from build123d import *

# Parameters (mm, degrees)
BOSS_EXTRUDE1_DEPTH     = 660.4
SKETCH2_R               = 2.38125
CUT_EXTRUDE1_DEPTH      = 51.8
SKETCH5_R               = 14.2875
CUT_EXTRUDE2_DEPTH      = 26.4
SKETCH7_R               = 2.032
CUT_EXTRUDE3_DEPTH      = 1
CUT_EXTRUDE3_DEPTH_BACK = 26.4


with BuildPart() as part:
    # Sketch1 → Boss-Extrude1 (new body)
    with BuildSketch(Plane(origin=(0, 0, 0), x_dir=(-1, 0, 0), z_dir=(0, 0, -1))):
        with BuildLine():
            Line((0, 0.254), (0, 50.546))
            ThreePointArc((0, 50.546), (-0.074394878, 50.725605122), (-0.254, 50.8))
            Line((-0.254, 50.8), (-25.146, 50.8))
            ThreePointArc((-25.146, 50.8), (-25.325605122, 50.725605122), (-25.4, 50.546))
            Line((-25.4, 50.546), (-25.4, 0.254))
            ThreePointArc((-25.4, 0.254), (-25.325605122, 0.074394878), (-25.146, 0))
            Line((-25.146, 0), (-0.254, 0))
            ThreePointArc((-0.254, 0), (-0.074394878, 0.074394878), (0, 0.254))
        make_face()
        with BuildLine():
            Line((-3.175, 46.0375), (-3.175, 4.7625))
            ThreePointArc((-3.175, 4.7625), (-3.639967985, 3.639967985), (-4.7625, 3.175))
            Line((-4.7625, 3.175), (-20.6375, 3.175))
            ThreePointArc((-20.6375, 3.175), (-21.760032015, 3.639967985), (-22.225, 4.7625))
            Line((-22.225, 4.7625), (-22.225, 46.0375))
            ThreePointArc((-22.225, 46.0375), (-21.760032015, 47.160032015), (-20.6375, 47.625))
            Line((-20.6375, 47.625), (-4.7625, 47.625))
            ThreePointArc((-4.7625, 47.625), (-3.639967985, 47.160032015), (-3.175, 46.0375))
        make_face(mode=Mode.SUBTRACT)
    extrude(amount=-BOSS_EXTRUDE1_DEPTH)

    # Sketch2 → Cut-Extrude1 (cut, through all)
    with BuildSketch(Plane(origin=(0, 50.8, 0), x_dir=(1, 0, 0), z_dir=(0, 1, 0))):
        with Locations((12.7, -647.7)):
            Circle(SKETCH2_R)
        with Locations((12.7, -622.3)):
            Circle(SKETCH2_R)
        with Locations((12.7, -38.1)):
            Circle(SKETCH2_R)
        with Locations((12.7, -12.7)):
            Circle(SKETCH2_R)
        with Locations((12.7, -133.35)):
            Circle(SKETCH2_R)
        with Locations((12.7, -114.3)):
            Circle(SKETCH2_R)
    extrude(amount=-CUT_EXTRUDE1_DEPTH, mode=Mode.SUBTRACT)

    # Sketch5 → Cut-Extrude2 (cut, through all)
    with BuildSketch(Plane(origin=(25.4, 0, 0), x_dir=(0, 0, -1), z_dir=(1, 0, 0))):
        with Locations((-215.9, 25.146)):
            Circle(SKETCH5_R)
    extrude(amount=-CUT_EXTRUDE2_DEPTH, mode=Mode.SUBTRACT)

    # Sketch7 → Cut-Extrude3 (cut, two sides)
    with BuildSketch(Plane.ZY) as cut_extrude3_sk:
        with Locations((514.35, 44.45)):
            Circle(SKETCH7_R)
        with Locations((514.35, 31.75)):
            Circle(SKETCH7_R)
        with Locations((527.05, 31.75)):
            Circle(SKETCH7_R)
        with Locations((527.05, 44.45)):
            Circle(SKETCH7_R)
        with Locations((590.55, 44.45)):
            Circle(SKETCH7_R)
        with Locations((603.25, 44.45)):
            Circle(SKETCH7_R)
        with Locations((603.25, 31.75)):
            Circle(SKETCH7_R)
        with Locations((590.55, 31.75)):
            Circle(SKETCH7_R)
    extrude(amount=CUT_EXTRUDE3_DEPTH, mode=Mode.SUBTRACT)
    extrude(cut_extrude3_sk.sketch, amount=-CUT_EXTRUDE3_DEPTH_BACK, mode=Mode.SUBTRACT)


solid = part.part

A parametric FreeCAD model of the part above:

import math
import FreeCAD as App
import Part
import Sketcher
Q = App.Units.Quantity

doc = App.newDocument("Part")
body = doc.addObject("PartDesign::Body", "Body")

sketch1 = doc.addObject("Sketcher::SketchObject", "Sketch")
body.addObject(sketch1)
sketch1.AttachmentSupport = (doc.XY_Plane, [""])
sketch1.MapMode = "FlatFace"
sketch1.addGeometry([
    Part.LineSegment(App.Vector(0, 0.25, 0), App.Vector(0, 50.55, 0)),
    Part.ArcOfCircle(Part.Circle(App.Vector(0.25, 50.55, 0), App.Vector(0, 0, 1), 0.25), math.radians(90), math.radians(180)),
    Part.LineSegment(App.Vector(0.25, 50.8, 0), App.Vector(25.15, 50.8, 0)),
    Part.ArcOfCircle(Part.Circle(App.Vector(25.15, 50.55, 0), App.Vector(0, 0, 1), 0.25), math.radians(0), math.radians(90)),
    Part.LineSegment(App.Vector(25.4, 50.55, 0), App.Vector(25.4, 0.25, 0)),
    Part.ArcOfCircle(Part.Circle(App.Vector(25.15, 0.25, 0), App.Vector(0, 0, 1), 0.25), math.radians(-90), math.radians(0)),
    Part.LineSegment(App.Vector(25.15, 0, 0), App.Vector(0.25, 0, 0)),
    Part.ArcOfCircle(Part.Circle(App.Vector(0.25, 0.25, 0), App.Vector(0, 0, 1), 0.25), math.radians(-180), math.radians(-90)),
    Part.ArcOfCircle(Part.Circle(App.Vector(4.76, 46.04, 0), App.Vector(0, 0, 1), 1.59), math.radians(90), math.radians(180)),
    Part.LineSegment(App.Vector(3.17, 46.04, 0), App.Vector(3.17, 4.76, 0)),
    Part.ArcOfCircle(Part.Circle(App.Vector(4.76, 4.76, 0), App.Vector(0, 0, 1), 1.59), math.radians(180), math.radians(270)),
    Part.LineSegment(App.Vector(4.76, 3.17, 0), App.Vector(20.64, 3.17, 0)),
    Part.ArcOfCircle(Part.Circle(App.Vector(20.64, 4.76, 0), App.Vector(0, 0, 1), 1.59), math.radians(-90), math.radians(0)),
    Part.LineSegment(App.Vector(22.23, 4.76, 0), App.Vector(22.23, 46.04, 0)),
    Part.ArcOfCircle(Part.Circle(App.Vector(20.64, 46.04, 0), App.Vector(0, 0, 1), 1.59), math.radians(0), math.radians(90)),
    Part.LineSegment(App.Vector(20.64, 47.62, 0), App.Vector(4.76, 47.62, 0)),
], False)
sketch1.addConstraint([
    Sketcher.Constraint("Tangent", 0, 2, 1, 2),
    Sketcher.Constraint("Tangent", 1, 1, 2, 1),
    Sketcher.Constraint("Tangent", 2, 2, 3, 2),
    Sketcher.Constraint("Tangent", 3, 1, 4, 1),
    Sketcher.Constraint("Tangent", 4, 2, 5, 2),
    Sketcher.Constraint("Tangent", 5, 1, 6, 1),
    Sketcher.Constraint("Tangent", 6, 2, 7, 2),
    Sketcher.Constraint("Tangent", 7, 1, 0, 1),
    Sketcher.Constraint("Tangent", 8, 2, 9, 1),
    Sketcher.Constraint("Tangent", 9, 2, 10, 1),
    Sketcher.Constraint("Tangent", 10, 2, 11, 1),
    Sketcher.Constraint("Tangent", 11, 2, 12, 1),
    Sketcher.Constraint("Tangent", 12, 2, 13, 1),
    Sketcher.Constraint("Tangent", 13, 2, 14, 1),
    Sketcher.Constraint("Tangent", 14, 2, 15, 1),
    Sketcher.Constraint("Tangent", 15, 2, 8, 1),
    Sketcher.Constraint("Vertical", 0),
    Sketcher.Constraint("Horizontal", 2),
    Sketcher.Constraint("Vertical", 4),
    Sketcher.Constraint("Horizontal", 6),
    Sketcher.Constraint("Vertical", 9),
    Sketcher.Constraint("Horizontal", 11),
    Sketcher.Constraint("Vertical", 13),
    Sketcher.Constraint("Horizontal", 15),
    Sketcher.Constraint("Equal", 1, 3),
    Sketcher.Constraint("Equal", 3, 5),
    Sketcher.Constraint("Equal", 5, 7),
    Sketcher.Constraint("Equal", 8, 10),
    Sketcher.Constraint("Equal", 10, 12),
    Sketcher.Constraint("Equal", 12, 14),
    Sketcher.Constraint("PointOnObject", 0, 2, -2),
    Sketcher.Constraint("PointOnObject", 5, 1, -1),
    Sketcher.Constraint("Radius", 1, Q("0.01 in")),
    Sketcher.Constraint("DistanceY", -1, 1, 1, 1, Q("2 in")),
    Sketcher.Constraint("DistanceX", -1, 1, 3, 1, Q("1 in")),
    Sketcher.Constraint("Radius", 8, Q("0.0625 in")),
    Sketcher.Constraint("DistanceX", 11, 1, 11, 2, Q("0.625 in")),
    Sketcher.Constraint("DistanceY", 9, 2, 9, 1, Q("1.625 in")),
    Sketcher.Constraint("DistanceX", -1, 1, 8, 3, Q("0.1875 in")),
    Sketcher.Constraint("DistanceY", -1, 1, 8, 3, Q("1.8125 in")),
])
pad1 = doc.addObject("PartDesign::Pad", "Pad")
body.addObject(pad1)
pad1.Profile = sketch1
pad1.Length = Q("26 in")

sketch2 = doc.addObject("Sketcher::SketchObject", "Sketch001")
body.addObject(sketch2)
sketch2.AttachmentSupport = (doc.XZ_Plane, [""])
sketch2.MapMode = "FlatFace"
sketch2.AttachmentOffset = App.Placement(App.Vector(0, 0, -2 * 25.4), App.Rotation())
sketch2.addGeometry([
    Part.Circle(App.Vector(12.7, 647.7, 0), App.Vector(0, 0, 1), 2.4),
    Part.Circle(App.Vector(12.7, 622.3, 0), App.Vector(0, 0, 1), 2.4),
    Part.Circle(App.Vector(12.7, 38.1, 0), App.Vector(0, 0, 1), 2.4),
    Part.Circle(App.Vector(12.7, 12.7, 0), App.Vector(0, 0, 1), 2.4),
    Part.Circle(App.Vector(12.7, 133.3, 0), App.Vector(0, 0, 1), 2.4),
    Part.Circle(App.Vector(12.7, 114.3, 0), App.Vector(0, 0, 1), 2.4),
], False)
sketch2.addConstraint([
    Sketcher.Constraint("Equal", 0, 1),
    Sketcher.Constraint("Equal", 1, 2),
    Sketcher.Constraint("Equal", 2, 3),
    Sketcher.Constraint("Equal", 3, 4),
    Sketcher.Constraint("Equal", 4, 5),
    Sketcher.Constraint("Vertical", 0, 3, 1, 3),
    Sketcher.Constraint("Vertical", 1, 3, 2, 3),
    Sketcher.Constraint("Vertical", 2, 3, 3, 3),
    Sketcher.Constraint("Vertical", 3, 3, 4, 3),
    Sketcher.Constraint("Vertical", 4, 3, 5, 3),
    Sketcher.Constraint("Diameter", 0, Q("0.1875 in")),
    Sketcher.Constraint("DistanceY", 1, 3, 0, 3, Q("1 in")),
    Sketcher.Constraint("DistanceY", 2, 3, 1, 3, Q("23 in")),
    Sketcher.Constraint("DistanceY", 3, 3, 2, 3, Q("1 in")),
    Sketcher.Constraint("DistanceY", 2, 3, 5, 3, Q("3 in")),
    Sketcher.Constraint("DistanceX", -1, 1, 0, 3, Q("0.5 in")),
    Sketcher.Constraint("DistanceY", -1, 1, 0, 3, Q("25.5 in")),
    Sketcher.Constraint("DistanceY", -1, 1, 4, 3, Q("5.25 in")),
])
pocket1 = doc.addObject("PartDesign::Pocket", "Pocket")
body.addObject(pocket1)
pocket1.Profile = sketch2
pocket1.Type = "ThroughAll"
pocket1.Reversed = True

sketch3 = doc.addObject("Sketcher::SketchObject", "Sketch002")
body.addObject(sketch3)
sketch3.AttachmentSupport = (doc.YZ_Plane, [""])
sketch3.MapMode = "FlatFace"
sketch3.AttachmentOffset = App.Placement(App.Vector(0, 0, 1 * 25.4), App.Rotation())
sketch3.addGeometry(Part.Circle(App.Vector(25, 216, 0), App.Vector(0, 0, 1), 14), False)
sketch3.addConstraint([
    Sketcher.Constraint("Diameter", 0, Q("1.125 in")),
    Sketcher.Constraint("DistanceY", -1, 1, 0, 3, Q("8.5 in")),
    Sketcher.Constraint("DistanceX", -1, 1, 0, 3, Q("0.99 in")),
])
pocket2 = doc.addObject("PartDesign::Pocket", "Pocket001")
body.addObject(pocket2)
pocket2.Profile = sketch3
pocket2.Type = "ThroughAll"

sketch4 = doc.addObject("Sketcher::SketchObject", "Sketch003")
body.addObject(sketch4)
sketch4.AttachmentSupport = (doc.YZ_Plane, [""])
sketch4.MapMode = "FlatFace"
sketch4.addGeometry([
    Part.Circle(App.Vector(44.5, 514.4, 0), App.Vector(0, 0, 1), 2),
    Part.Circle(App.Vector(31.8, 514.4, 0), App.Vector(0, 0, 1), 2),
    Part.Circle(App.Vector(31.8, 527, 0), App.Vector(0, 0, 1), 2),
    Part.Circle(App.Vector(44.5, 527, 0), App.Vector(0, 0, 1), 2),
    Part.Circle(App.Vector(44.5, 590.5, 0), App.Vector(0, 0, 1), 2),
    Part.Circle(App.Vector(44.5, 603.2, 0), App.Vector(0, 0, 1), 2),
    Part.Circle(App.Vector(31.8, 603.2, 0), App.Vector(0, 0, 1), 2),
    Part.Circle(App.Vector(31.8, 590.5, 0), App.Vector(0, 0, 1), 2),
], False)
sketch4.addConstraint([
    Sketcher.Constraint("Equal", 0, 1),
    Sketcher.Constraint("Equal", 1, 2),
    Sketcher.Constraint("Equal", 2, 3),
    Sketcher.Constraint("Equal", 3, 4),
    Sketcher.Constraint("Equal", 4, 5),
    Sketcher.Constraint("Equal", 5, 6),
    Sketcher.Constraint("Equal", 6, 7),
    Sketcher.Constraint("Horizontal", 0, 3, 1, 3),
    Sketcher.Constraint("Horizontal", 2, 3, 3, 3),
    Sketcher.Constraint("Horizontal", 5, 3, 6, 3),
    Sketcher.Constraint("Horizontal", 4, 3, 7, 3),
    Sketcher.Constraint("Vertical", 1, 3, 2, 3),
    Sketcher.Constraint("Vertical", 0, 3, 3, 3),
    Sketcher.Constraint("Vertical", 3, 3, 4, 3),
    Sketcher.Constraint("Vertical", 4, 3, 5, 3),
    Sketcher.Constraint("Vertical", 2, 3, 6, 3),
    Sketcher.Constraint("Vertical", 6, 3, 7, 3),
    Sketcher.Constraint("Diameter", 0, Q("0.16 in")),
    Sketcher.Constraint("DistanceY", 0, 3, 4, 3, Q("3 in")),
    Sketcher.Constraint("DistanceY", 3, 3, 5, 3, Q("3 in")),
    Sketcher.Constraint("DistanceX", 1, 3, 0, 3, Q("0.5 in")),
    Sketcher.Constraint("DistanceY", 1, 3, 2, 3, Q("0.5 in")),
    Sketcher.Constraint("DistanceX", -1, 1, 0, 3, Q("1.75 in")),
    Sketcher.Constraint("DistanceY", -1, 1, 0, 3, Q("20.25 in")),
])
pocket3 = doc.addObject("PartDesign::Pocket", "Pocket002")
body.addObject(pocket3)
pocket3.Profile = sketch4
pocket3.Type = "ThroughAll"
pocket3.Midplane = True

doc.recompute()
